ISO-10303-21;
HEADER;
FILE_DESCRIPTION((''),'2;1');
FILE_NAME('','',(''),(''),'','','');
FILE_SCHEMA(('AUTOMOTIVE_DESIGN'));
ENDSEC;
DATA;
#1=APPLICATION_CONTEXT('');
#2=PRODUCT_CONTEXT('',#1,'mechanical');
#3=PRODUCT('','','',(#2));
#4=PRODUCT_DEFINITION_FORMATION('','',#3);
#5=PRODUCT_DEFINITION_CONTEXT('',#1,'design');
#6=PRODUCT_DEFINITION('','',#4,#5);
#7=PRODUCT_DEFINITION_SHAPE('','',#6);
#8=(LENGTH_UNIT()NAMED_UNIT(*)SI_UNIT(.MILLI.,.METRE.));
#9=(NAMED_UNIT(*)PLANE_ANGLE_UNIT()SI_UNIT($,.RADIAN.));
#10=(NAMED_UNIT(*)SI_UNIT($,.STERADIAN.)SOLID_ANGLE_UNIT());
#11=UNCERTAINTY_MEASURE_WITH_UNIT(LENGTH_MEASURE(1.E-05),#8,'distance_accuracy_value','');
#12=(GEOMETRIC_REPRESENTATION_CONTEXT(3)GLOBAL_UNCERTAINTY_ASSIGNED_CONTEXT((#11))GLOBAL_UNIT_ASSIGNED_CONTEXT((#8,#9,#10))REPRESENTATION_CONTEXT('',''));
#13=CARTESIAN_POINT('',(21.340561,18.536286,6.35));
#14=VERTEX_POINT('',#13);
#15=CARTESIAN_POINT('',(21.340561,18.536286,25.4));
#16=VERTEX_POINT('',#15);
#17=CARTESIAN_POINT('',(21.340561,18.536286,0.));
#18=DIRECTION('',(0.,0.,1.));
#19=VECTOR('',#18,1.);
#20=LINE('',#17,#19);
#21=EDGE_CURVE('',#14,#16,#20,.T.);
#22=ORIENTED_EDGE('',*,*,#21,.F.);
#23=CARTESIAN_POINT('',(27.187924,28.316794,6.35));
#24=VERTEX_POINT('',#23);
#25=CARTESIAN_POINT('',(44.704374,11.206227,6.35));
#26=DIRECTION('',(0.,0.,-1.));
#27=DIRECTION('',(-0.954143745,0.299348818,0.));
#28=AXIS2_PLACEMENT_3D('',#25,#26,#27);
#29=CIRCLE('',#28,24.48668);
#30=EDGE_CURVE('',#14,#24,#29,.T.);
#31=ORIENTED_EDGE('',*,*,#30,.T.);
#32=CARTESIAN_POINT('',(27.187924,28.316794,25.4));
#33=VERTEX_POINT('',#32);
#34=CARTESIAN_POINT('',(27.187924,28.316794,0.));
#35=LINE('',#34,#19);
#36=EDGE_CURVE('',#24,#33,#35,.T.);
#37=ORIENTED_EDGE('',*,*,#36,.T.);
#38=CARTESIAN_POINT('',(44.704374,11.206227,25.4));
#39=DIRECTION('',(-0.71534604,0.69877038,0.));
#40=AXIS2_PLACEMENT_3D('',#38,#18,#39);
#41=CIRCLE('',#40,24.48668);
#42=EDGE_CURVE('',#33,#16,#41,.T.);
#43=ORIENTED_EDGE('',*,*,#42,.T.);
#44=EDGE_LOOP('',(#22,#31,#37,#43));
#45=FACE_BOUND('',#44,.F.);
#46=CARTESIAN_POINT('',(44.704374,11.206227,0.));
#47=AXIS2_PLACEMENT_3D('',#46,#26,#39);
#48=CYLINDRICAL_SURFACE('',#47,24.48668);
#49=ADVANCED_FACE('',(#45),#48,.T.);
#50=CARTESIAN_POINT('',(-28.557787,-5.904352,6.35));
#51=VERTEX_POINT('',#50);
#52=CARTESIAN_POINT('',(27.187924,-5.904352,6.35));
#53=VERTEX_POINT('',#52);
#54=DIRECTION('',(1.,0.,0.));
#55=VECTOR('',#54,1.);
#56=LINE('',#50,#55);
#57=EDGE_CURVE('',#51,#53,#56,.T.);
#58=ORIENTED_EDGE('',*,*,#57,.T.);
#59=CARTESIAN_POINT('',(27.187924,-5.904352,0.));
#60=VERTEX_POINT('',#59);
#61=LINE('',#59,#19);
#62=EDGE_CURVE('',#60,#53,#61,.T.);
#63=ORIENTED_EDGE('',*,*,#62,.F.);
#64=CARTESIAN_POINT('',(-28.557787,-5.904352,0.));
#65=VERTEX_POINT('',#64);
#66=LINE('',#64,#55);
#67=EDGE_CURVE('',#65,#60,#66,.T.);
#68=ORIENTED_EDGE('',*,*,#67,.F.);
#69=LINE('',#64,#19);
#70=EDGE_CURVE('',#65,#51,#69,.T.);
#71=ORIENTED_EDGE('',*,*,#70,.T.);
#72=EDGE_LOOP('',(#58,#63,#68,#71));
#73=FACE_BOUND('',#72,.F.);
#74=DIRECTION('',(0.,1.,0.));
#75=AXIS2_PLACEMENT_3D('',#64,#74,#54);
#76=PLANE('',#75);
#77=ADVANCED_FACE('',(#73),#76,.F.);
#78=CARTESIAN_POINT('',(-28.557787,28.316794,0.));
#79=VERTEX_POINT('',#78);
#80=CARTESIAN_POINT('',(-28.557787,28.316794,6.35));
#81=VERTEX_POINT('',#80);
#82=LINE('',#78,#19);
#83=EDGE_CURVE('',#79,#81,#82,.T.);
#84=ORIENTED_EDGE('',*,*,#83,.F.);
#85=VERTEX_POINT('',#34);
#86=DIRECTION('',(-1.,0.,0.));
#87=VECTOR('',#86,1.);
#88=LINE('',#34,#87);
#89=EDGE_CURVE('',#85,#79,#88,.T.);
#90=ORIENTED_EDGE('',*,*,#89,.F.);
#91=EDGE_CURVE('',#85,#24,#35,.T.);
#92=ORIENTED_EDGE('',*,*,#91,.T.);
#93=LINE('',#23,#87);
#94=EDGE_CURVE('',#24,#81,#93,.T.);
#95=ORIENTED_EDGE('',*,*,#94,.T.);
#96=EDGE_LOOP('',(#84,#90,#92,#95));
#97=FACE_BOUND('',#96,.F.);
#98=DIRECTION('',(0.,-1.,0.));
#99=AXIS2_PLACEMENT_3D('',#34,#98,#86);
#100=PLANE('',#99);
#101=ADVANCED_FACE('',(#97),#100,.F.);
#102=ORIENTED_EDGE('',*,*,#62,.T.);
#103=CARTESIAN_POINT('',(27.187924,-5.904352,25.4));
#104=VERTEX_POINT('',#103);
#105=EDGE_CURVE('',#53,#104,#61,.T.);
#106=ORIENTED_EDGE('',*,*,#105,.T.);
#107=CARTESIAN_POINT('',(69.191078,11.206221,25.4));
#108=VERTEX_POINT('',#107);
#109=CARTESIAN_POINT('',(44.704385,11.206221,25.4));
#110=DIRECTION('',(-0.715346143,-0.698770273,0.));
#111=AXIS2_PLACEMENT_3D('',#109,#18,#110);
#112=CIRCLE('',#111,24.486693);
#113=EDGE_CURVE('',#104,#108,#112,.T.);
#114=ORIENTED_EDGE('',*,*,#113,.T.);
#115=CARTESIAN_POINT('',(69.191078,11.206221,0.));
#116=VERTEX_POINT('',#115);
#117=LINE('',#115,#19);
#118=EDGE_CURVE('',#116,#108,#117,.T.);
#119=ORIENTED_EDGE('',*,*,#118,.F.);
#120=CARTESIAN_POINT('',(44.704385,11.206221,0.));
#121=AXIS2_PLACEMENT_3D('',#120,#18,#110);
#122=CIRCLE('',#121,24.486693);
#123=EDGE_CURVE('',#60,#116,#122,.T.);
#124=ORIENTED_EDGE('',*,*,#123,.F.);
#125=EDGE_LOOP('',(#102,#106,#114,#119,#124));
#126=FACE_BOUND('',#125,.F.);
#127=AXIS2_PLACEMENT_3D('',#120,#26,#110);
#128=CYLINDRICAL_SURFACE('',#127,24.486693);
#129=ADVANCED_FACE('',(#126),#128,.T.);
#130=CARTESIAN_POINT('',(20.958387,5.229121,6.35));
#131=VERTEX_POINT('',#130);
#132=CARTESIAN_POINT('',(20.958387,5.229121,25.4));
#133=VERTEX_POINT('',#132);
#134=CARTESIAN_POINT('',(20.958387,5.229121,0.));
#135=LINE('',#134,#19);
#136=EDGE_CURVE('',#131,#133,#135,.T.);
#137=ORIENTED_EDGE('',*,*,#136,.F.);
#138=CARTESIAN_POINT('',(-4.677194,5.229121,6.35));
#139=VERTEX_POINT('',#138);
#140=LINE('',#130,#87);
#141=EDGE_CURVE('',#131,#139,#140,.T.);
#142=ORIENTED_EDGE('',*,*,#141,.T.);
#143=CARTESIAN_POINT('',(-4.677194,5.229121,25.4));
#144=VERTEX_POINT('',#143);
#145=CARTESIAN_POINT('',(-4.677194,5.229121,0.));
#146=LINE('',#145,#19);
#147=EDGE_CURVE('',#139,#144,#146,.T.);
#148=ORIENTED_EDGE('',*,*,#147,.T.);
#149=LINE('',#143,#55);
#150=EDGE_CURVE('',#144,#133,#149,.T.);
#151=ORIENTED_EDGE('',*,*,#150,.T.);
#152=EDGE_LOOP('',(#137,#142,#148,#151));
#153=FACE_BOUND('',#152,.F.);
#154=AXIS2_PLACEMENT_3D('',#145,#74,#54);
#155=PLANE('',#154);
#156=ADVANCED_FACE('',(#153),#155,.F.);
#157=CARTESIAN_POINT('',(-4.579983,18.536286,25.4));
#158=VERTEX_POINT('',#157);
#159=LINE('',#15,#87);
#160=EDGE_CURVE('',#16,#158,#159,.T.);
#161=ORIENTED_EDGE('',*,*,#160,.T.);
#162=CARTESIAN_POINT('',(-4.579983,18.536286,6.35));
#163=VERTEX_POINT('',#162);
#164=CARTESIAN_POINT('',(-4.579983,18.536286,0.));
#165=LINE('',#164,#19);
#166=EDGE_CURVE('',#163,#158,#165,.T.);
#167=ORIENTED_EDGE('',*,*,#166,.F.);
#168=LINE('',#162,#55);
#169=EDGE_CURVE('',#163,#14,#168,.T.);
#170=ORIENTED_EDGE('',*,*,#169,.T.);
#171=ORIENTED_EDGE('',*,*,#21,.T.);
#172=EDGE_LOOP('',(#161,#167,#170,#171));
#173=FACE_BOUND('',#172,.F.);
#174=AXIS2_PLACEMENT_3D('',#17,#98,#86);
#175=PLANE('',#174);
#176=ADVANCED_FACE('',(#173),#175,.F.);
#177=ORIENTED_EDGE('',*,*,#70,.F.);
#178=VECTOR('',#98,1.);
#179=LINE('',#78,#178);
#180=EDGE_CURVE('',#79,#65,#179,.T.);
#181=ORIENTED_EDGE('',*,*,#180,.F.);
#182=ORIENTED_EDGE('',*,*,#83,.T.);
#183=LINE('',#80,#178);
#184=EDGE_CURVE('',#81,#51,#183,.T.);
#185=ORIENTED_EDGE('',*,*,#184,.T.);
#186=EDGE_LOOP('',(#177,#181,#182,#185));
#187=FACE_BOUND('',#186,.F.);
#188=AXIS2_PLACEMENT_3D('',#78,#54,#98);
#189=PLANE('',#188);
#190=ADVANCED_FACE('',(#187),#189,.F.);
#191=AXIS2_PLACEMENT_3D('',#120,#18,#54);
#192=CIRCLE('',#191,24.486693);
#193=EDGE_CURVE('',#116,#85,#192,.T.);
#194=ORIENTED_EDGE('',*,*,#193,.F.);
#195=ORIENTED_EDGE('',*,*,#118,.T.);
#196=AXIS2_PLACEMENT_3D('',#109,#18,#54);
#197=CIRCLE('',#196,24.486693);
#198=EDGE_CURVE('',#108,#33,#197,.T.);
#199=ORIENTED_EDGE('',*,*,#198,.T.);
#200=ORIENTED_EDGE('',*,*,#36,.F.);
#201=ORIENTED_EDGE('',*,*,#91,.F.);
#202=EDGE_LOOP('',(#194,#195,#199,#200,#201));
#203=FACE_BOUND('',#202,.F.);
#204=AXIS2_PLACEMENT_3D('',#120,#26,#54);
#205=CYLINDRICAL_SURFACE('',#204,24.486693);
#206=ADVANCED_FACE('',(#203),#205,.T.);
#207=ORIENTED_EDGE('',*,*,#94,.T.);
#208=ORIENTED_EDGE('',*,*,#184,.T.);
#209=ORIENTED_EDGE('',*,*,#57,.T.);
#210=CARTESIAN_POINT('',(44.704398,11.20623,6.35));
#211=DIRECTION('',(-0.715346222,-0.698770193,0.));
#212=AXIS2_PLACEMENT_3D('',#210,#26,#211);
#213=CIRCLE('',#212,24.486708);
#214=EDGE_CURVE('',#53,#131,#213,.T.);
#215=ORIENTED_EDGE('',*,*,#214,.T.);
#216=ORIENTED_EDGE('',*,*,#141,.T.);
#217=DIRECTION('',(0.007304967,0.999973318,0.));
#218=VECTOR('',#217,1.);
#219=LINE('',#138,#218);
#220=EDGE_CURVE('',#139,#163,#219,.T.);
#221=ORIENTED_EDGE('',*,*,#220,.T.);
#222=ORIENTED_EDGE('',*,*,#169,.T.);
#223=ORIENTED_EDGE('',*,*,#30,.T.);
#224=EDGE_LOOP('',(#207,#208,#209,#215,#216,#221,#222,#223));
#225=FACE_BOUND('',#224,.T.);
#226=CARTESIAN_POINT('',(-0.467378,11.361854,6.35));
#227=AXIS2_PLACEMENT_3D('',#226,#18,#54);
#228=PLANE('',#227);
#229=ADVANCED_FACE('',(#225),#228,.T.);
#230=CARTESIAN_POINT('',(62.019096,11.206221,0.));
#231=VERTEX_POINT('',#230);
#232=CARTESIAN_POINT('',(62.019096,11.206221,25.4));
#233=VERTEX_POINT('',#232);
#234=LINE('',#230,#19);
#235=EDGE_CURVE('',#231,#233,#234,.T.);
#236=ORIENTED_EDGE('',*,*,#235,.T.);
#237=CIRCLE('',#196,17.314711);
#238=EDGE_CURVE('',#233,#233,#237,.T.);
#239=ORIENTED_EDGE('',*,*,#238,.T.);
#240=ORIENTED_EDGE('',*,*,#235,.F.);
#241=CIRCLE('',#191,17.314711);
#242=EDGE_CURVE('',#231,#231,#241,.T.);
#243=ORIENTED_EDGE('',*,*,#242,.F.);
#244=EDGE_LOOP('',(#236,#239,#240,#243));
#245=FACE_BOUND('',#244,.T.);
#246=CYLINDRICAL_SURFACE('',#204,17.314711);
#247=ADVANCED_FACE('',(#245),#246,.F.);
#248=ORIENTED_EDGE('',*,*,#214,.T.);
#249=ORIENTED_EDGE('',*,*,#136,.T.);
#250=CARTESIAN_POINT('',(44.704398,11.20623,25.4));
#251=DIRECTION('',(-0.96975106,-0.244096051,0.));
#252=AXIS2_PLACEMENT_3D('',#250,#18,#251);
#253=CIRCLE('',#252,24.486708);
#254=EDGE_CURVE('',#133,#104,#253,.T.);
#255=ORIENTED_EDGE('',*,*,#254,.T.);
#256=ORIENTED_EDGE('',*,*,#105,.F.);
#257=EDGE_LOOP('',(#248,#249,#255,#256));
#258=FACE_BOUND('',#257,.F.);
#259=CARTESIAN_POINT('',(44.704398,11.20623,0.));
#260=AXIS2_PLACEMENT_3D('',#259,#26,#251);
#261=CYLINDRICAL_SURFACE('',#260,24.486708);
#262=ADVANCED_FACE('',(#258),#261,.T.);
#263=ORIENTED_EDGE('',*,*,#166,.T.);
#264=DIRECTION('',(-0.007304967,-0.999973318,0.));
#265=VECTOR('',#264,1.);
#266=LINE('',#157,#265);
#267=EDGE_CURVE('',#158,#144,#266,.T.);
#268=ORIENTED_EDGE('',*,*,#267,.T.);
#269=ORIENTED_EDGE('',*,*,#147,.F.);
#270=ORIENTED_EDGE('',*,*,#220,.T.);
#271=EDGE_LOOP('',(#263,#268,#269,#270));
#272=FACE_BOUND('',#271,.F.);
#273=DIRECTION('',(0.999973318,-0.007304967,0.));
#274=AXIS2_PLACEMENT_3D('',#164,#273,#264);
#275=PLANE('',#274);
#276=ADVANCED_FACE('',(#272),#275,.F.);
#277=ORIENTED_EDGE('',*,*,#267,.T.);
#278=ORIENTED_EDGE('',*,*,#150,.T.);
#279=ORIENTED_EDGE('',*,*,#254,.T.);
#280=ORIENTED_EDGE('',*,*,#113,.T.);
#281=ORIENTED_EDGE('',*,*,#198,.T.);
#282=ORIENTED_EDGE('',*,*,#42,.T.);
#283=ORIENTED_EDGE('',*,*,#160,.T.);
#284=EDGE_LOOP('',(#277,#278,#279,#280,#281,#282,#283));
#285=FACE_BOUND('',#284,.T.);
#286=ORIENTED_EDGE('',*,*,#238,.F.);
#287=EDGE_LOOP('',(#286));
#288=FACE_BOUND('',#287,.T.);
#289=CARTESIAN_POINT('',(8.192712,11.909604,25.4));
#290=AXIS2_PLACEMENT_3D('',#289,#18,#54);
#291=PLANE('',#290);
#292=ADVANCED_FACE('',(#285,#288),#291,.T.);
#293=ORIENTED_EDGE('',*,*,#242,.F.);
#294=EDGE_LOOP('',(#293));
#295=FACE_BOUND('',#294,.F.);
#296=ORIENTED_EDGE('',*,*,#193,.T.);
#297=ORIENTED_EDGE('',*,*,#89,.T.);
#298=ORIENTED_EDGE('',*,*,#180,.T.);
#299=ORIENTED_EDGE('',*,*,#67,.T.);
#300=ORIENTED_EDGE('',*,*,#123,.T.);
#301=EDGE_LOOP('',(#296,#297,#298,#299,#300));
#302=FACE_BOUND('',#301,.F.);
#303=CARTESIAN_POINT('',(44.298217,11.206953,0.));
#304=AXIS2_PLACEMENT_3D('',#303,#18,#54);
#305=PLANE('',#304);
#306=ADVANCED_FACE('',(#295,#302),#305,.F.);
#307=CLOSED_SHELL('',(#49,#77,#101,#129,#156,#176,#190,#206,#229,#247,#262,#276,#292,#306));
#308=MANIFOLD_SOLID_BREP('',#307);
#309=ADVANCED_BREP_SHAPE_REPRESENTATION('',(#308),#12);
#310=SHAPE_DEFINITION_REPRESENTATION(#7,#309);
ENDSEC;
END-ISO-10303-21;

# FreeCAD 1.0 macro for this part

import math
import FreeCAD as App
import Part
import Sketcher

doc = App.newDocument("Part")
params = doc.addObject("Spreadsheet::Sheet", "Params")
for row, (alias, value) in enumerate([
    ("pad1_length", "0.25 in"),
    ("pad2_length", "1 in"),
    ("pad3_length", "1 in"),
], start=1):
    params.set(f"A{row}", alias)
    params.set(f"B{row}", "=" + value)
    params.setAlias(f"B{row}", alias)

body = doc.addObject("PartDesign::Body", "Body")

# Sketch on XY plane
sketch1 = body.newObject("Sketcher::SketchObject", "Sketch")
sketch1.AttachmentSupport = (doc.getObject("XY_Plane"), [""])
sketch1.MapMode = "FlatFace"
sketch1.addGeometry([
    Part.LineSegment(App.Vector(-29, 28, 0), App.Vector(-29, -6, 0)),  # 0
    Part.LineSegment(App.Vector(-29, -6, 0), App.Vector(27, -6, 0)),  # 1
    Part.ArcOfCircle(Part.Circle(App.Vector(45, 11, 0), App.Vector(0, 0, 1), 24), math.radians(-166), math.radians(-136)),  # 2
    Part.LineSegment(App.Vector(21, 5, 0), App.Vector(-5, 5, 0)),  # 3
    Part.LineSegment(App.Vector(-5, 5, 0), App.Vector(-5, 19, 0)),  # 4
    Part.LineSegment(App.Vector(-5, 19, 0), App.Vector(21, 19, 0)),  # 5
    Part.ArcOfCircle(Part.Circle(App.Vector(45, 11, 0), App.Vector(0, 0, 1), 24), math.radians(136), math.radians(163)),  # 6
    Part.LineSegment(App.Vector(27, 28, 0), App.Vector(-29, 28, 0)),  # 7
], False)
sketch1.addConstraint([
    Sketcher.Constraint("Coincident", 0, 2, 1, 1),
    Sketcher.Constraint("Coincident", 1, 2, 2, 2),
    Sketcher.Constraint("Coincident", 2, 1, 3, 1),
    Sketcher.Constraint("Coincident", 3, 2, 4, 1),
    Sketcher.Constraint("Coincident", 4, 2, 5, 1),
    Sketcher.Constraint("Coincident", 5, 2, 6, 2),
    Sketcher.Constraint("Coincident", 6, 1, 7, 1),
    Sketcher.Constraint("Coincident", 7, 2, 0, 1),
    Sketcher.Constraint("Vertical", 0),
    Sketcher.Constraint("Horizontal", 1),
    Sketcher.Constraint("Horizontal", 3),
    Sketcher.Constraint("Horizontal", 5),
    Sketcher.Constraint("Horizontal", 7),
    Sketcher.Constraint("Vertical", 1, 2, 6, 1),
    Sketcher.Constraint("Radius", 2, 24.486708),
    Sketcher.Constraint("Radius", 6, 24.48668),
    Sketcher.Constraint("DistanceX", 1, 1, 1, 2, 55.745711),
    Sketcher.Constraint("DistanceX", 3, 2, 3, 1, 25.635581),
    Sketcher.Constraint("DistanceX", -1, 1, 2, 3, 44.704398),
    Sketcher.Constraint("Distance", 4, 13.30752),
    Sketcher.Constraint("DistanceX", 5, 1, 5, 2, 25.920544),
    Sketcher.Constraint("DistanceY", 0, 2, 0, 1, 34.221146),
    Sketcher.Constraint("DistanceY", -1, 1, 2, 3, 11.20623),
    Sketcher.Constraint("DistanceY", -1, 1, 2, 1, 5.229121),
    Sketcher.Constraint("DistanceX", -1, 1, 5, 2, 21.340561),
    Sketcher.Constraint("DistanceX", 0, 2, 6, 3, 73.262161),
])
pad1 = body.newObject("PartDesign::Pad", "Pad")
pad1.Profile = sketch1
pad1.setExpression("Length", "Params.pad1_length")

# Sketch on XY plane
sketch2 = body.newObject("Sketcher::SketchObject", "Sketch001")
sketch2.AttachmentSupport = (doc.getObject("XY_Plane"), [""])
sketch2.MapMode = "FlatFace"
sketch2.addGeometry([
    Part.ArcOfCircle(Part.Circle(App.Vector(44.704398, 11.20623, 0), App.Vector(0, 0, 1), 24.486708), math.radians(-165.871581), math.radians(-135.671581)),  # 0
    Part.ArcOfCircle(Part.Circle(App.Vector(44.704385, 11.206221, 0), App.Vector(0, 0, 1), 24.486693), math.radians(-135.671574), math.radians(0)),  # 1
    Part.ArcOfCircle(Part.Circle(App.Vector(44.704385, 11.206221, 0), App.Vector(0, 0, 1), 24.486693), math.radians(0), math.radians(135.671574)),  # 2
    Part.ArcOfCircle(Part.Circle(App.Vector(44.704374, 11.206227, 0), App.Vector(0, 0, 1), 24.48668), math.radians(135.671566), math.radians(162.581504)),  # 3
    Part.ArcOfCircle(Part.Circle(App.Vector(44.704383, 11.20622, 0), App.Vector(0, 0, 1), 24.486691), math.radians(162.581495), math.radians(194.128407)),  # 4
    Part.Circle(App.Vector(44.704385, 11.206221, 0), App.Vector(0, 0, 1), 17.314711),  # 5
], False)
sketch2.addConstraint([
    Sketcher.Constraint("Coincident", 0, 2, 1, 1),
    Sketcher.Constraint("Coincident", 1, 2, 2, 1),
    Sketcher.Constraint("Coincident", 2, 2, 3, 1),
    Sketcher.Constraint("Coincident", 3, 2, 4, 1),
    Sketcher.Constraint("Coincident", 4, 2, 0, 1),
    Sketcher.Constraint("Coincident", 2, 3, 1, 3),
    Sketcher.Constraint("Coincident", 4, 3, 1, 3),
    Sketcher.Constraint("Coincident", 5, 3, 1, 3),
    Sketcher.Constraint("Diameter", 5, 34.629422),
    Sketcher.Constraint("Radius", 0, 24.486708),
    Sketcher.Constraint("Radius", 3, 24.48668),
    Sketcher.Constraint("Radius", 4, 24.486691),
    Sketcher.Constraint("Radius", 1, 24.486693),
    Sketcher.Constraint("DistanceX", -1, 1, 0, 3, 44.704398),
    Sketcher.Constraint("DistanceY", 4, 2, 4, 3, 5.977099),
    Sketcher.Constraint("DistanceY", -1, 1, 0, 3, 11.20623),
    Sketcher.Constraint("DistanceY", 0, 2, -1, 1, 5.904352),
    Sketcher.Constraint("DistanceY", -1, 1, 1, 2, 11.206221),
    Sketcher.Constraint("DistanceX", -1, 1, 3, 2, 21.340561),
    Sketcher.Constraint("DistanceX", 2, 2, 3, 3, 17.51645),
])
pad2 = body.newObject("PartDesign::Pad", "Pad001")
pad2.Profile = sketch2
pad2.setExpression("Length", "Params.pad2_length")

# Sketch on XY plane
sketch3 = body.newObject("Sketcher::SketchObject", "Sketch002")
sketch3.AttachmentSupport = (doc.getObject("XY_Plane"), [""])
sketch3.MapMode = "FlatFace"
sketch3.addGeometry([
    Part.LineSegment(App.Vector(-5, 5, 0), App.Vector(21, 5, 0)),
    Part.ArcOfCircle(Part.Circle(App.Vector(45, 11, 0), App.Vector(0, 0, 1), 24), math.radians(163), math.radians(194)),
    Part.LineSegment(App.Vector(21, 19, 0), App.Vector(-5, 19, 0)),
    Part.LineSegment(App.Vector(-5, 19, 0), App.Vector(-5, 5, 0)),
], False)
sketch3.addConstraint([
    Sketcher.Constraint("Coincident", 0, 2, 1, 2),
    Sketcher.Constraint("Coincident", 1, 1, 2, 1),
    Sketcher.Constraint("Coincident", 2, 2, 3, 1),
    Sketcher.Constraint("Coincident", 3, 2, 0, 1),
    Sketcher.Constraint("Horizontal", 0),
    Sketcher.Constraint("Horizontal", 2),
    Sketcher.Constraint("Radius", 1, 24.486691),
    Sketcher.Constraint("DistanceX", 0, 1, 0, 2, 25.635581),
    Sketcher.Constraint("DistanceY", 0, 2, 1, 3, 5.977099),
    Sketcher.Constraint("Distance", 3, 13.30752),
    Sketcher.Constraint("DistanceX", 2, 2, 2, 1, 25.920544),
    Sketcher.Constraint("DistanceY", -1, 1, 1, 3, 11.20622),
    Sketcher.Constraint("DistanceX", -1, 1, 1, 1, 21.340561),
])
pad3 = body.newObject("PartDesign::Pad", "Pad002")
pad3.Profile = sketch3
pad3.setExpression("Length", "Params.pad3_length")

doc.recompute()
